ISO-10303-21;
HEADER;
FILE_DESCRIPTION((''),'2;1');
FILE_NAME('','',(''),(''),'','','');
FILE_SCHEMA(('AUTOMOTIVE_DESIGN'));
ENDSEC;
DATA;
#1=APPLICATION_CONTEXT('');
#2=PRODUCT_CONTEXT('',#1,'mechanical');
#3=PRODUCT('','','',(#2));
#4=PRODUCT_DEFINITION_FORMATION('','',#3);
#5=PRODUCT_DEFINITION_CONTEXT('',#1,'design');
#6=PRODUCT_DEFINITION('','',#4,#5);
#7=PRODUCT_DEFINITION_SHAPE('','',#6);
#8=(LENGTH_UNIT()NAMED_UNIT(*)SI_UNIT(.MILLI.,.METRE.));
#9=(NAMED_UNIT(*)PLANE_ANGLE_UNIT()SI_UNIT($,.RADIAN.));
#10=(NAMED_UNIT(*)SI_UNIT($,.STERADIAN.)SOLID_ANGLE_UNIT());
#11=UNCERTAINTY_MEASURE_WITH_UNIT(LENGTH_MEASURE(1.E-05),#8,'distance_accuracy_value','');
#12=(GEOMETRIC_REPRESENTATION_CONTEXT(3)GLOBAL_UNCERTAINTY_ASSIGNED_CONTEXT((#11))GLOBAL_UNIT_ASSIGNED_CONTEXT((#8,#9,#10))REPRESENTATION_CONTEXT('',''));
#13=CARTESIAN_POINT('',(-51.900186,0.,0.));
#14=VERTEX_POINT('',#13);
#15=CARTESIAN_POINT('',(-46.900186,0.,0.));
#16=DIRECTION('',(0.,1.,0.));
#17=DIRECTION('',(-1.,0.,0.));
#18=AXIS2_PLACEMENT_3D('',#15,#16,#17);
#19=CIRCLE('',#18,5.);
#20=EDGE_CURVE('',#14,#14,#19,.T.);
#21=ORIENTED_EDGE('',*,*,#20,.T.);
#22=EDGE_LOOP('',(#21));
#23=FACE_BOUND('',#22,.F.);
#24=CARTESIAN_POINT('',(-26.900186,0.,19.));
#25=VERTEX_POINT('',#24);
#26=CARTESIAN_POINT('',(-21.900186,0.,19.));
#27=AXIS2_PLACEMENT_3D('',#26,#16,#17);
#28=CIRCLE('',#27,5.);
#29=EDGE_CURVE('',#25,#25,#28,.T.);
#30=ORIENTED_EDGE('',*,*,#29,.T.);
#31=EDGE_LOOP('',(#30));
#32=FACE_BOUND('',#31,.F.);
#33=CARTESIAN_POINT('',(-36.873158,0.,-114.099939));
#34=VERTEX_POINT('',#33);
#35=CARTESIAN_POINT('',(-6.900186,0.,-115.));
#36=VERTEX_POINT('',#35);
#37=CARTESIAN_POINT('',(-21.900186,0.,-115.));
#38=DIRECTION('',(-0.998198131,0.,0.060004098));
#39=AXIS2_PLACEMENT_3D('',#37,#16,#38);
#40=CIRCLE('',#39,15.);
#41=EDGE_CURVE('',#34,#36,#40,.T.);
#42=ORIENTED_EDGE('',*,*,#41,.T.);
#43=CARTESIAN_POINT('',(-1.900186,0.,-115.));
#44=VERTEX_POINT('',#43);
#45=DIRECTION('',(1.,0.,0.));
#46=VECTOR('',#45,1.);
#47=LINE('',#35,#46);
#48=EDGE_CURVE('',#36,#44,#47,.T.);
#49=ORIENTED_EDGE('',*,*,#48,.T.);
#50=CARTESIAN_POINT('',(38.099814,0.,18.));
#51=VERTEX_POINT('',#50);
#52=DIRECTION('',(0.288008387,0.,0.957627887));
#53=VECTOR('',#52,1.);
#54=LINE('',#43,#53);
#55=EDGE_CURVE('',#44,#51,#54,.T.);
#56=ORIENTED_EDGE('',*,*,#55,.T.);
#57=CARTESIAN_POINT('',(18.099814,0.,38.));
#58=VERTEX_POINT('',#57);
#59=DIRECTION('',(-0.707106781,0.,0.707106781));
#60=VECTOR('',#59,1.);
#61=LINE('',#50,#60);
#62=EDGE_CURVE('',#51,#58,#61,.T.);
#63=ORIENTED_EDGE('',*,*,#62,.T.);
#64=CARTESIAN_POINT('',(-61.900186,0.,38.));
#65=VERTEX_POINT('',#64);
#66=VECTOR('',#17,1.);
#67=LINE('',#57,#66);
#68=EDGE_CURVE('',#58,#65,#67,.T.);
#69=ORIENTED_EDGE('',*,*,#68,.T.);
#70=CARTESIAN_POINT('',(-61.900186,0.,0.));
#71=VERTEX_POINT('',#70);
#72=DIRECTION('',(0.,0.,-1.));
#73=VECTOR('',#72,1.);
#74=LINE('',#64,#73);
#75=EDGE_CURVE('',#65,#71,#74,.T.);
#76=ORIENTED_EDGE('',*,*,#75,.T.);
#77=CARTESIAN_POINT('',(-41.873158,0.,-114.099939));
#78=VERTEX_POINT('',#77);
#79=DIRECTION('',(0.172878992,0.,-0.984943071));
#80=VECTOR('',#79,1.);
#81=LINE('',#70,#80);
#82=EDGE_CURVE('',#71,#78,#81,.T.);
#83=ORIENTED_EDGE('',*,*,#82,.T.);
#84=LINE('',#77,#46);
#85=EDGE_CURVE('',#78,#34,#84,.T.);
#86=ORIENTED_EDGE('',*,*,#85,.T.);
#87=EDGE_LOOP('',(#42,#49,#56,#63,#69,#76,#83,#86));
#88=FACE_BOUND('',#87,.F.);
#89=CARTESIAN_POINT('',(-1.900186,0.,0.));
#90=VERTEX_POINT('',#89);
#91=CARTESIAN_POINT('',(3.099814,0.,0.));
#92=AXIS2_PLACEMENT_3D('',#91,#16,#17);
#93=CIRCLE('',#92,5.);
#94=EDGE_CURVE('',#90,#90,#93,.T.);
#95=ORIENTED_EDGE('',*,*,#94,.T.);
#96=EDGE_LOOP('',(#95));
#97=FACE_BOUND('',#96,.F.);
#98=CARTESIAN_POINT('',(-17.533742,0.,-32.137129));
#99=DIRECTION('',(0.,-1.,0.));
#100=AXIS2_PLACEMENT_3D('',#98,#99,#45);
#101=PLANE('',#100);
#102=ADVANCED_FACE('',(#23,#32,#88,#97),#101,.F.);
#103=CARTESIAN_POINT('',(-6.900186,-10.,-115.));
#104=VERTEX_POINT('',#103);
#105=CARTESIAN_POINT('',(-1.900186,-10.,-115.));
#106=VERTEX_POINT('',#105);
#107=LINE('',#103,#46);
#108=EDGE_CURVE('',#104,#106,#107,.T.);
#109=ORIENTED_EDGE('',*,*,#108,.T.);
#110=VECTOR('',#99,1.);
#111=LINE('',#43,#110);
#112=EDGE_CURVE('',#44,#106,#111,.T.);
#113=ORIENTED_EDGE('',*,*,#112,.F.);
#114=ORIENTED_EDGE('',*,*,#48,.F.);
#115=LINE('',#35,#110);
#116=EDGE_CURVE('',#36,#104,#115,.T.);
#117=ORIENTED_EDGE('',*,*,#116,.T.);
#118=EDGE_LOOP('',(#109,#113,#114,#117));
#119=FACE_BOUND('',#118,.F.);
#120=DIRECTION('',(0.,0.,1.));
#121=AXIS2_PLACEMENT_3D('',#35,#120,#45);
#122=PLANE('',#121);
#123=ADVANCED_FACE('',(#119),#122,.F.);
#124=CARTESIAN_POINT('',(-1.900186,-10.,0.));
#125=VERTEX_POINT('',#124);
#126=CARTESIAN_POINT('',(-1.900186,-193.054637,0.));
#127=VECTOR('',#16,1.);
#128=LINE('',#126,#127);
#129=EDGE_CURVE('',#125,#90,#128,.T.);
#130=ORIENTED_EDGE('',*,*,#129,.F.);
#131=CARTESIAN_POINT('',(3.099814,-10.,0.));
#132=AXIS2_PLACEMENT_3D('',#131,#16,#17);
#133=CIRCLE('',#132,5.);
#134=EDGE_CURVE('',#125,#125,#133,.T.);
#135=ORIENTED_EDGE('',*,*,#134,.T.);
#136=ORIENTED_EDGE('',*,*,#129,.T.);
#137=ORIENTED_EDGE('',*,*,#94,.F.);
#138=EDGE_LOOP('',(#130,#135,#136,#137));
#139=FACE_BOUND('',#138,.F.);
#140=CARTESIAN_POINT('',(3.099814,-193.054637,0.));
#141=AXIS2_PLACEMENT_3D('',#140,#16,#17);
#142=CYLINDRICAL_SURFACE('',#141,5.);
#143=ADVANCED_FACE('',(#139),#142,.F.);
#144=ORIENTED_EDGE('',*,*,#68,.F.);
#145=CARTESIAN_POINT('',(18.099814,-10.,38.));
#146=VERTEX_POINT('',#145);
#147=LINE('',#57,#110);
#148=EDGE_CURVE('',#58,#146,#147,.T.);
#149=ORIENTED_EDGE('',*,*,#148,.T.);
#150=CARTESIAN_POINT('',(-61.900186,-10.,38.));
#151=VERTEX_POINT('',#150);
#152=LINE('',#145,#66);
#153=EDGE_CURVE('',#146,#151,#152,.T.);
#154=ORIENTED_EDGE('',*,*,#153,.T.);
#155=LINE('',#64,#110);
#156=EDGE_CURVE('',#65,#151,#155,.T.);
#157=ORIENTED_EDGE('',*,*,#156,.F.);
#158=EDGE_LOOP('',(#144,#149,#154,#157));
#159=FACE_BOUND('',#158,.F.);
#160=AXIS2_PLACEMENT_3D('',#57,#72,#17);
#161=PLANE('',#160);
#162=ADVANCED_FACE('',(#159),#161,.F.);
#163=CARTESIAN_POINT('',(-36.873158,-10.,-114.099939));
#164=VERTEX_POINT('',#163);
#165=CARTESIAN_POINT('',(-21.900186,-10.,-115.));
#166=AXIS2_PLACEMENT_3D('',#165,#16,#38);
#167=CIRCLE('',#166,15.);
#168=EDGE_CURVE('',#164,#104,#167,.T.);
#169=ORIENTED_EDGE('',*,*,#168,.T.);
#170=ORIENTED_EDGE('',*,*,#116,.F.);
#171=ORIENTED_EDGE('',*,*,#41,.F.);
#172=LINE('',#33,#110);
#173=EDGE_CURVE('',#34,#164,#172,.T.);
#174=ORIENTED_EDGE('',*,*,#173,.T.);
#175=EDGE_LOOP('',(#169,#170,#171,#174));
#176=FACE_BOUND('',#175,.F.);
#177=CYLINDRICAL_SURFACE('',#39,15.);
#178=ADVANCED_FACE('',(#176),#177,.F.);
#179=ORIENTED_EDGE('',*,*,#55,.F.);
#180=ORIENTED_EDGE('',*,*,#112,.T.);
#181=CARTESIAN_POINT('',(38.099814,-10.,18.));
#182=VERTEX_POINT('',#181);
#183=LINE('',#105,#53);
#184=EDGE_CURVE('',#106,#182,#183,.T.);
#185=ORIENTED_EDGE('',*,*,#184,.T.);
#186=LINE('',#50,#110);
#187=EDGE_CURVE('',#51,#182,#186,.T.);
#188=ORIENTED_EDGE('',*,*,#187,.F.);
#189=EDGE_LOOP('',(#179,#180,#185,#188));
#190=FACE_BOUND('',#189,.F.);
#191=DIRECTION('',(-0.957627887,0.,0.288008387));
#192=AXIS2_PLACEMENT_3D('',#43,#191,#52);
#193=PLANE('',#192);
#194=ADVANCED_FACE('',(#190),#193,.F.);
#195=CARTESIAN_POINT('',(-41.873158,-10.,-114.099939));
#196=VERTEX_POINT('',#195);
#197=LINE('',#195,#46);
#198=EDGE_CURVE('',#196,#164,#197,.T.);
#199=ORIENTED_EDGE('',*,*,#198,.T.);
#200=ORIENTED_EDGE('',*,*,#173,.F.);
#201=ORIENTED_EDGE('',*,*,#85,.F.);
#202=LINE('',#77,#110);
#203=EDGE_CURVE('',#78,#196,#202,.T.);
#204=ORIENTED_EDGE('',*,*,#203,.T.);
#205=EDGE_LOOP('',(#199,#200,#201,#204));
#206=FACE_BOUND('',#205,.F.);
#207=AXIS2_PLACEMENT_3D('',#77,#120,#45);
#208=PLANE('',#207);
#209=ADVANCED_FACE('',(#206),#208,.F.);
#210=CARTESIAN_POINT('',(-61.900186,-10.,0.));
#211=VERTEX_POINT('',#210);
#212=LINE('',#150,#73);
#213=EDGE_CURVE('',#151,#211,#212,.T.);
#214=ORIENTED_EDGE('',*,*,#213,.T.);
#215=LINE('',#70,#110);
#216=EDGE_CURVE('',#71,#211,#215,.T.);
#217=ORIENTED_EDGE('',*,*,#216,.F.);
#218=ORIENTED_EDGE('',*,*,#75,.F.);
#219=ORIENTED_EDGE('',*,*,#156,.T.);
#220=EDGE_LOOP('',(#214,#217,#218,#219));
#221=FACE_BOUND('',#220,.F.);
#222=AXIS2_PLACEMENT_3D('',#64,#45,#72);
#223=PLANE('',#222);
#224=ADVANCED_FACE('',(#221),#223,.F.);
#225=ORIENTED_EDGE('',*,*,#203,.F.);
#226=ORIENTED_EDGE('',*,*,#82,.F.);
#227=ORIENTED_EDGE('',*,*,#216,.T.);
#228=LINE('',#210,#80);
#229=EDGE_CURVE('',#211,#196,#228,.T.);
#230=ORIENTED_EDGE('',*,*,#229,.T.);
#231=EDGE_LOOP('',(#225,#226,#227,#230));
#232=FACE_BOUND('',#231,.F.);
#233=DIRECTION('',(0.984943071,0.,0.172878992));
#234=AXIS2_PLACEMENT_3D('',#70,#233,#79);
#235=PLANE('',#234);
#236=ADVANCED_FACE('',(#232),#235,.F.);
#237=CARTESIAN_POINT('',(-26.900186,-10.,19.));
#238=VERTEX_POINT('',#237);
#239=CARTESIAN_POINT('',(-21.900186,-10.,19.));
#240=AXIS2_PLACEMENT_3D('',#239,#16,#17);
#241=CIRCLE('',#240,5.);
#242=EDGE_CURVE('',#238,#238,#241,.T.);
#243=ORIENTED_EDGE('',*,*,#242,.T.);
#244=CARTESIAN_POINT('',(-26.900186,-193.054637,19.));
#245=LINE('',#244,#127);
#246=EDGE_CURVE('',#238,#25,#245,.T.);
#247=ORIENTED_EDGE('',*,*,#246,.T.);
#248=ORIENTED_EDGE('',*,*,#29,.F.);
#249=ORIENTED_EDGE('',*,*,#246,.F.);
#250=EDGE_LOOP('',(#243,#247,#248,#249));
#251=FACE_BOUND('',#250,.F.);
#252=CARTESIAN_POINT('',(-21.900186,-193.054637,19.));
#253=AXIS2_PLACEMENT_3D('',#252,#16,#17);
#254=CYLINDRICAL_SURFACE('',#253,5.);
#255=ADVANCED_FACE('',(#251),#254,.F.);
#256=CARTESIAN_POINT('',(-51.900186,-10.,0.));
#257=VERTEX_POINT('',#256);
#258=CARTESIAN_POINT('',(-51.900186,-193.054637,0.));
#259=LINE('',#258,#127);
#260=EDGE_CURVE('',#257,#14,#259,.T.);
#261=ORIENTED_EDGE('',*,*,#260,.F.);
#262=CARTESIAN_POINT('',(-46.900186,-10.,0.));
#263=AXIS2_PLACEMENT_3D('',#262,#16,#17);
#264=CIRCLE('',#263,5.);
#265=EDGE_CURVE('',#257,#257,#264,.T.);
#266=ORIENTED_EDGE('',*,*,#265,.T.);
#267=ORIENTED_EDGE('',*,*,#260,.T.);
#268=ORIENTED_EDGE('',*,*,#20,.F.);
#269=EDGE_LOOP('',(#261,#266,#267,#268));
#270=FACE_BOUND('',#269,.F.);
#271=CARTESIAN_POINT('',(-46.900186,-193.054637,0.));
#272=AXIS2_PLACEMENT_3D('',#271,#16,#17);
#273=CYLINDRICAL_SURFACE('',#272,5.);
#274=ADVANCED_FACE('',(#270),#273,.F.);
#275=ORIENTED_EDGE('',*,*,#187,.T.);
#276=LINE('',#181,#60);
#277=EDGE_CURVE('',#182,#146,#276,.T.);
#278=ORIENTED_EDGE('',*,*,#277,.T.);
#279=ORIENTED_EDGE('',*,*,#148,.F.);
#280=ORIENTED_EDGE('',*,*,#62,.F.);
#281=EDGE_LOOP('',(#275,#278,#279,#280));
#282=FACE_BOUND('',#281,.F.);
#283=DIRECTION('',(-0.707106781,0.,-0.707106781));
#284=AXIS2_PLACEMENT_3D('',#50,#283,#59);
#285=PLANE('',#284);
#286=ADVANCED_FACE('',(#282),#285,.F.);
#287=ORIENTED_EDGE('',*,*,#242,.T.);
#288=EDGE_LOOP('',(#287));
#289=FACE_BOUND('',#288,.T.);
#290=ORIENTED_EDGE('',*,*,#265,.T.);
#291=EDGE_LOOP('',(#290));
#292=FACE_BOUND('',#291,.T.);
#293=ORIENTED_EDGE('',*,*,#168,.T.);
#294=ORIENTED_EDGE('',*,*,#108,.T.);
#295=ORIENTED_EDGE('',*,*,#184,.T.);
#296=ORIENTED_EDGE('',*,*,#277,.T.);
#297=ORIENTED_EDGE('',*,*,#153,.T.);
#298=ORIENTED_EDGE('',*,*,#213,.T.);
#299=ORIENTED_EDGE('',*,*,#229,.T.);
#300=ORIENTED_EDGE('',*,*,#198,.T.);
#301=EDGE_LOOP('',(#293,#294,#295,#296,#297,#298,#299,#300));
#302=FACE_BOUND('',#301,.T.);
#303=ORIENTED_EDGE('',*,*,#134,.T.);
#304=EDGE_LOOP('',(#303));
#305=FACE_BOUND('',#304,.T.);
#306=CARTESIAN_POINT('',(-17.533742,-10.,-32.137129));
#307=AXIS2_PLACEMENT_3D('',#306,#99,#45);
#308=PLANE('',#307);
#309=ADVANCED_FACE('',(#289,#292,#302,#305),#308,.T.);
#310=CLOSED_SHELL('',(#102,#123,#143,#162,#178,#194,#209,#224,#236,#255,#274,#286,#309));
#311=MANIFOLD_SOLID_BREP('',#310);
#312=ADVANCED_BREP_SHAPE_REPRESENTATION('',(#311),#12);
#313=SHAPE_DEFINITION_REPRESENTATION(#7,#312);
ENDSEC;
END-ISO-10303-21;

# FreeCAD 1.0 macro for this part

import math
import FreeCAD as App
import Part
import Sketcher
from FreeCAD import Vector
Q = App.Units.Quantity

doc = App.newDocument("Part")
body = doc.addObject("PartDesign::Body", "Body")

sketch1 = body.newObject("Sketcher::SketchObject", "Sketch")
sketch1.AttachmentSupport = (doc.getObject("XZ_Plane"), [""])
sketch1.MapMode = "FlatFace"
sketch1.addGeometry(Part.LineSegment(Vector(18, 38, 0), Vector(-62, 38, 0)), False)
sketch1.addGeometry(Part.LineSegment(Vector(-62, 38, 0), Vector(-62, 0, 0)), False)
sketch1.addGeometry(Part.LineSegment(Vector(-62, 0, 0), Vector(-42, -114, 0)), False)
sketch1.addGeometry(Part.LineSegment(Vector(-42, -114, 0), Vector(-37, -114, 0)), False)
sketch1.addGeometry(Part.ArcOfCircle(Part.Circle(Vector(-22, -115, 0), Vector(0, 0, 1), 15), math.radians(0), math.radians(177)), False)
sketch1.addGeometry(Part.LineSegment(Vector(-7, -115, 0), Vector(-2, -115, 0)), False)
sketch1.addGeometry(Part.LineSegment(Vector(-2, -115, 0), Vector(38, 18, 0)), False)
sketch1.addGeometry(Part.LineSegment(Vector(38, 18, 0), Vector(18, 38, 0)), False)
sketch1.addConstraint(Sketcher.Constraint("Coincident", 0, 2, 1, 1))
sketch1.addConstraint(Sketcher.Constraint("Coincident", 1, 2, 2, 1))
sketch1.addConstraint(Sketcher.Constraint("Coincident", 2, 2, 3, 1))
sketch1.addConstraint(Sketcher.Constraint("Coincident", 3, 2, 4, 2))
sketch1.addConstraint(Sketcher.Constraint("Coincident", 4, 1, 5, 1))
sketch1.addConstraint(Sketcher.Constraint("Coincident", 5, 2, 6, 1))
sketch1.addConstraint(Sketcher.Constraint("Coincident", 6, 2, 7, 1))
sketch1.addConstraint(Sketcher.Constraint("Coincident", 7, 2, 0, 1))
sketch1.addConstraint(Sketcher.Constraint("Horizontal", 0))
sketch1.addConstraint(Sketcher.Constraint("Vertical", 1))
sketch1.addConstraint(Sketcher.Constraint("Horizontal", 3))
sketch1.addConstraint(Sketcher.Constraint("Horizontal", 5))
sketch1.addConstraint(Sketcher.Constraint("PointOnObject", 1, 2, -1))
sketch1.addConstraint(Sketcher.Constraint("Equal", 3, 5))
sketch1.addConstraint(Sketcher.Constraint("Radius", 4, 15.0))
sketch1.addConstraint(Sketcher.Constraint("DistanceX", 0, 2, 0, 1, 80.0))
sketch1.addConstraint(Sketcher.Constraint("DistanceX", 3, 1, 3, 2, 5.0))
sketch1.addConstraint(Sketcher.Constraint("DistanceY", 1, 2, 1, 1, 38.0))
sketch1.addConstraint(Sketcher.Constraint("Angle", 7, Q("135 deg")))
sketch1.addConstraint(Sketcher.Constraint("DistanceY", 4, 3, -1, 1, 115.0))
sketch1.addConstraint(Sketcher.Constraint("DistanceY", 4, 1, -1, 1, 115.0))
sketch1.addConstraint(Sketcher.Constraint("DistanceY", -1, 1, 6, 2, 18.0))
sketch1.addConstraint(Sketcher.Constraint("DistanceX", 0, 2, 4, 3, 40.0))
sketch1.addConstraint(Sketcher.Constraint("DistanceY", 2, 2, -1, 1, 114.099939))
sketch1.addConstraint(Sketcher.Constraint("DistanceX", 4, 3, -1, 1, 21.900186))
pad1 = body.newObject("PartDesign::Pad", "Pad")
pad1.Profile = sketch1
pad1.Length = 10

sketch2 = body.newObject("Sketcher::SketchObject", "Sketch001")
sketch2.AttachmentSupport = (doc.getObject("XZ_Plane"), [""])
sketch2.MapMode = "FlatFace"
sketch2.AttachmentOffset = App.Placement(Vector(0, 0, 10), App.Rotation())
sketch2.addGeometry(Part.Circle(Vector(-47, 0, 0), Vector(0, 0, 1), 5), False)
sketch2.addGeometry(Part.Circle(Vector(-22, 19, 0), Vector(0, 0, 1), 5), False)
sketch2.addGeometry(Part.Circle(Vector(3, 0, 0), Vector(0, 0, 1), 5), False)
sketch2.addConstraint(Sketcher.Constraint("Equal", 0, 1))
sketch2.addConstraint(Sketcher.Constraint("Equal", 1, 2))
sketch2.addConstraint(Sketcher.Constraint("PointOnObject", 0, 3, -1))
sketch2.addConstraint(Sketcher.Constraint("PointOnObject", 2, 3, -1))
sketch2.addConstraint(Sketcher.Constraint("Diameter", 0, 10.0))
sketch2.addConstraint(Sketcher.Constraint("DistanceY", -1, 1, 1, 3, 19.0))
sketch2.addConstraint(Sketcher.Constraint("DistanceX", 0, 3, 1, 3, 25.0))
sketch2.addConstraint(Sketcher.Constraint("DistanceX", 1, 3, 2, 3, 25.0))
sketch2.addConstraint(Sketcher.Constraint("DistanceX", 0, 3, -1, 1, 46.900186))
doc.recompute()
hole = body.newObject("PartDesign::Hole", "Hole")
hole.Profile = sketch2
hole.ThreadType = "None"
hole.Diameter = 10
hole.DepthType = "ThroughAll"

doc.recompute()
